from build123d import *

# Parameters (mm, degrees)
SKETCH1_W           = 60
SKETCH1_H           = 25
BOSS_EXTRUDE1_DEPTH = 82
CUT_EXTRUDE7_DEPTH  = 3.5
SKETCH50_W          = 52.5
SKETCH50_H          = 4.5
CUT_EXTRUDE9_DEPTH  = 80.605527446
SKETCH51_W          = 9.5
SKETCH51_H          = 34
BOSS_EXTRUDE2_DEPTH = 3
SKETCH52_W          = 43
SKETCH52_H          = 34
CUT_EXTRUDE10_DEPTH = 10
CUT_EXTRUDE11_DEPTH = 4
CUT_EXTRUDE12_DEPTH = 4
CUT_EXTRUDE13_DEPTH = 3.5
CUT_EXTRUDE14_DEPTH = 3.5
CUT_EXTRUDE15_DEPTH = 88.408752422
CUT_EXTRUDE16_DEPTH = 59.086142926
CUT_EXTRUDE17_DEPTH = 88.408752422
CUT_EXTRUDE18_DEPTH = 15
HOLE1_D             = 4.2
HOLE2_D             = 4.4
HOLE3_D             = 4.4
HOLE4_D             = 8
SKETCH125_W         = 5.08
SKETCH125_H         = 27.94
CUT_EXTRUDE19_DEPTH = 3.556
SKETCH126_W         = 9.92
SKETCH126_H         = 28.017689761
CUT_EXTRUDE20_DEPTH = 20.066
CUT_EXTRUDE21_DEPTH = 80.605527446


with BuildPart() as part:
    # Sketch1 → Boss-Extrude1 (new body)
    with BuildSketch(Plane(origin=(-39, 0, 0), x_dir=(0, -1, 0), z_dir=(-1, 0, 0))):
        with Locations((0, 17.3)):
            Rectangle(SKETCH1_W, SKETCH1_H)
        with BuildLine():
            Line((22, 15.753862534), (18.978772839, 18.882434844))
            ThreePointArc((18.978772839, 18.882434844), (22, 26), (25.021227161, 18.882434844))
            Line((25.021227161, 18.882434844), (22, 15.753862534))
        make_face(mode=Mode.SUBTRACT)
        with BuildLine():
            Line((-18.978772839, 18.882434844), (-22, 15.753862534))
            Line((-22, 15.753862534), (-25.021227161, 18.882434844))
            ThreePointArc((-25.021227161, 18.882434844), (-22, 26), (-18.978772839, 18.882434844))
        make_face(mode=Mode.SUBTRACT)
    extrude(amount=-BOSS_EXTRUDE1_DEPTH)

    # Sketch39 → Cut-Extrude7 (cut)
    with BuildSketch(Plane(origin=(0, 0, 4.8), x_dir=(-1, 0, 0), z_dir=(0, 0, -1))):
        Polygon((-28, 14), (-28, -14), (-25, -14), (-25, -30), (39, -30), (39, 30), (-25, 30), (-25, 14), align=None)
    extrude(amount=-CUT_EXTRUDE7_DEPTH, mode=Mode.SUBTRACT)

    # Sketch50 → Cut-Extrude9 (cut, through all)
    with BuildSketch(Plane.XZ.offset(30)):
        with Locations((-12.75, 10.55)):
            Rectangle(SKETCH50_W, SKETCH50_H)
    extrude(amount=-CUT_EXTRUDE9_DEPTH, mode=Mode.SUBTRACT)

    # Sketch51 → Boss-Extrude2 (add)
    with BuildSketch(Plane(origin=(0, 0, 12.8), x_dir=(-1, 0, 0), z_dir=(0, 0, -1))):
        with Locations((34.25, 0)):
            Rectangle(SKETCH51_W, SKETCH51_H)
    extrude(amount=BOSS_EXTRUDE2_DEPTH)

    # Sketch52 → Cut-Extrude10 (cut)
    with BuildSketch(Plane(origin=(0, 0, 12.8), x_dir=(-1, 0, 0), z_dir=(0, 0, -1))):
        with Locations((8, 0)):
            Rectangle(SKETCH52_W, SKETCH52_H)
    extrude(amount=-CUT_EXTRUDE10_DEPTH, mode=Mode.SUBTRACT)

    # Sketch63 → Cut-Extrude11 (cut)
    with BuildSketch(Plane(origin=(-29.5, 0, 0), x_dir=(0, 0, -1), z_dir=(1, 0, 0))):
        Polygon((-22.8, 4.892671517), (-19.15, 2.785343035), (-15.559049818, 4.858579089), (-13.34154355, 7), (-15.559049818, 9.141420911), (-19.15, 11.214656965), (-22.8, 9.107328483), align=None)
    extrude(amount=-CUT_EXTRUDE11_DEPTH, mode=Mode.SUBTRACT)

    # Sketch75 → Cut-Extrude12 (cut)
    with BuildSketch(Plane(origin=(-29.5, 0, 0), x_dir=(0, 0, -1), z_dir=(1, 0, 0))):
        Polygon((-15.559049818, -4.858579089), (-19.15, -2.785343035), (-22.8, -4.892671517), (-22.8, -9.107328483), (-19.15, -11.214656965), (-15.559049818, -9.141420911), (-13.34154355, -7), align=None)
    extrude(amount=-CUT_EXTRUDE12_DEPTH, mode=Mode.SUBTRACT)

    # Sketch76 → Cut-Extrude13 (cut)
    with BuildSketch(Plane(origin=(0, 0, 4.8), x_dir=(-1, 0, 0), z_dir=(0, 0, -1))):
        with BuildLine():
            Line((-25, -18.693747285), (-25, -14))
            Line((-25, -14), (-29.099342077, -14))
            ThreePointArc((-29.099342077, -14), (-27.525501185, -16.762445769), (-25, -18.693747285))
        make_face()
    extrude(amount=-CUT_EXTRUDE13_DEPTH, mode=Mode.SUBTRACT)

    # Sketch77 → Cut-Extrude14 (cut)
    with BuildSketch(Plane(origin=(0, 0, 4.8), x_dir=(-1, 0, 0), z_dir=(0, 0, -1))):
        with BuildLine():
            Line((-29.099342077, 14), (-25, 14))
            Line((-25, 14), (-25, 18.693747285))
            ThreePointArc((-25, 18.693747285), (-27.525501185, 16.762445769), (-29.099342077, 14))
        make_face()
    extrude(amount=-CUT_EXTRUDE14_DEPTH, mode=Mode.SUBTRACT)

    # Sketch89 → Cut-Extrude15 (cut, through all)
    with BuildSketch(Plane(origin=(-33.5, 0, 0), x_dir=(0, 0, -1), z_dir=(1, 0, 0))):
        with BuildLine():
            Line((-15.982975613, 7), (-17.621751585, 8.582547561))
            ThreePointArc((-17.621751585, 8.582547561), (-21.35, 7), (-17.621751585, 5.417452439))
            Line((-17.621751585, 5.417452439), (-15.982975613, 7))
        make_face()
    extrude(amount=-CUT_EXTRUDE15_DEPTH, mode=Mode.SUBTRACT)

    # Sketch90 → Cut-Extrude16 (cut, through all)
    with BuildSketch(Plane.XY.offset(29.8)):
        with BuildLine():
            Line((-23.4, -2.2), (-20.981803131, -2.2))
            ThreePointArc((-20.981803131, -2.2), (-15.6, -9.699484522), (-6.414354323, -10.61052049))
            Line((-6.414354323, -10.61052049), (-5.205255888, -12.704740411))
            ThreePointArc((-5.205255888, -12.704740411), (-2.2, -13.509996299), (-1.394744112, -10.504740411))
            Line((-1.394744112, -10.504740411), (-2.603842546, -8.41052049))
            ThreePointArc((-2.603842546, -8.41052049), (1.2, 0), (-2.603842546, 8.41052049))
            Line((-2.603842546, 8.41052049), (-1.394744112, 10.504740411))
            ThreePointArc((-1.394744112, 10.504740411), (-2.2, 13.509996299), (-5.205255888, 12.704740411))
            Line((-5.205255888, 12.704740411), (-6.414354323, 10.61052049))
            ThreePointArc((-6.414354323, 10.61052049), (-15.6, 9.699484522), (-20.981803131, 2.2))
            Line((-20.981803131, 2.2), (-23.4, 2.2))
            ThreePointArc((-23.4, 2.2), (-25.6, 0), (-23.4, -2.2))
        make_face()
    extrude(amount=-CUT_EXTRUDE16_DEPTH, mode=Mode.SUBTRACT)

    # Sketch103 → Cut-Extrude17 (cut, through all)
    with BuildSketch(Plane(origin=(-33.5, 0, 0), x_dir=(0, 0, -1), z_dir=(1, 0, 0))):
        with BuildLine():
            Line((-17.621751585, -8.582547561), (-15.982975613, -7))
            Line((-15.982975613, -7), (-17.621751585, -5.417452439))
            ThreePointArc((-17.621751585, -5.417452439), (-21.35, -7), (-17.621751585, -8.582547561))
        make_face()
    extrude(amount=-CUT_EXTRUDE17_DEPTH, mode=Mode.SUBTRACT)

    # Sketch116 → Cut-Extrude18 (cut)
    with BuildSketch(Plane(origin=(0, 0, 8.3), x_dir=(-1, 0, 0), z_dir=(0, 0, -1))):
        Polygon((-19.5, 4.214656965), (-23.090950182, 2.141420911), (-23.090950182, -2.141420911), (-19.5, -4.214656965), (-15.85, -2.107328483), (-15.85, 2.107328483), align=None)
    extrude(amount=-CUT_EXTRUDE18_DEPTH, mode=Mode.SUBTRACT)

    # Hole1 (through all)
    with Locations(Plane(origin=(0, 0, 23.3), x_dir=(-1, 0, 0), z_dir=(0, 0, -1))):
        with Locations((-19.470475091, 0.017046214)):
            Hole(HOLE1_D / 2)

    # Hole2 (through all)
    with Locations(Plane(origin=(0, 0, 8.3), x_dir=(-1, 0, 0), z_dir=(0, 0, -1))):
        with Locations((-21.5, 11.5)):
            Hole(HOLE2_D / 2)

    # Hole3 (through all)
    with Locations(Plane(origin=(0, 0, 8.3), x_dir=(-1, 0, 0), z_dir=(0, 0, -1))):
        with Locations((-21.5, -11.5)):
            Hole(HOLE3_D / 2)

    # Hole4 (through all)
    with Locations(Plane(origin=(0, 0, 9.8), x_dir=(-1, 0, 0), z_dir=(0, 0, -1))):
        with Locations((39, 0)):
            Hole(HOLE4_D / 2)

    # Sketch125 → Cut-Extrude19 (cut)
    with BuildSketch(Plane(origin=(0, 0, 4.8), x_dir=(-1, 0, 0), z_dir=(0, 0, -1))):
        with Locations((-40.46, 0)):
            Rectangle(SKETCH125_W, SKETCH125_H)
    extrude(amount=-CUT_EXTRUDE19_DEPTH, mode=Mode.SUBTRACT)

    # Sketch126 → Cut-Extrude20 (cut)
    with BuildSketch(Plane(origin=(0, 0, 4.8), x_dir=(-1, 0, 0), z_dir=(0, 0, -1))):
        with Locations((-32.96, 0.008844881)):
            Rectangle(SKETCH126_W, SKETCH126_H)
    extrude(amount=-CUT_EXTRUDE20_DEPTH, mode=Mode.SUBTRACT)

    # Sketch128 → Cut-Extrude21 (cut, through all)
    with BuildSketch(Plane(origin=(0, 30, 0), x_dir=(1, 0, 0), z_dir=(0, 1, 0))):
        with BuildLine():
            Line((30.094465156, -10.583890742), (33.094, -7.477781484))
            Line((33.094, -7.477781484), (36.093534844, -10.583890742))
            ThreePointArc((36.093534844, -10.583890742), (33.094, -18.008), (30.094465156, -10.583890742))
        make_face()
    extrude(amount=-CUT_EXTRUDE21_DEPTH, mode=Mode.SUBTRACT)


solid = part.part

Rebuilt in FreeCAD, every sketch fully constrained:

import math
import FreeCAD as App
import Part
import Sketcher
Q = App.Units.Quantity

doc = App.newDocument("Part")
body = doc.addObject("PartDesign::Body", "Body")

sketch1 = body.newObject("Sketcher::SketchObject", "Sketch")
sketch1.AttachmentSupport = (doc.getObject("YZ_Plane"), [""])
sketch1.MapMode = "FlatFace"
sketch1.AttachmentOffset = App.Placement(App.Vector(0, 0, -39), App.Rotation())
sketch1.addGeometry([
    Part.LineSegment(App.Vector(30, 29.8, 0), App.Vector(30, 4.8, 0)),
    Part.LineSegment(App.Vector(30, 4.8, 0), App.Vector(-30, 4.8, 0)),
    Part.LineSegment(App.Vector(-30, 4.8, 0), App.Vector(-30, 29.8, 0)),
    Part.LineSegment(App.Vector(-30, 29.8, 0), App.Vector(30, 29.8, 0)),
    Part.ArcOfCircle(Part.Circle(App.Vector(22, 21.8, 0), App.Vector(0, 0, 1), 4.2), math.radians(-44), math.radians(224)),
    Part.LineSegment(App.Vector(19, 18.9, 0), App.Vector(22, 15.8, 0)),
    Part.LineSegment(App.Vector(22, 15.8, 0), App.Vector(25, 18.9, 0)),
    Part.LineSegment(App.Vector(-25, 18.9, 0), App.Vector(-22, 15.8, 0)),
    Part.LineSegment(App.Vector(-22, 15.8, 0), App.Vector(-19, 18.9, 0)),
    Part.ArcOfCircle(Part.Circle(App.Vector(-22, 21.8, 0), App.Vector(0, 0, 1), 4.2), math.radians(-44), math.radians(224)),
], False)
sketch1.addConstraint([
    Sketcher.Constraint("Coincident", 0, 2, 1, 1),
    Sketcher.Constraint("Coincident", 1, 2, 2, 1),
    Sketcher.Constraint("Coincident", 2, 2, 3, 1),
    Sketcher.Constraint("Coincident", 3, 2, 0, 1),
    Sketcher.Constraint("Tangent", 4, 2, 5, 1),
    Sketcher.Constraint("Coincident", 5, 2, 6, 1),
    Sketcher.Constraint("Tangent", 6, 2, 4, 1),
    Sketcher.Constraint("Coincident", 7, 2, 8, 1),
    Sketcher.Constraint("Tangent", 8, 2, 9, 1),
    Sketcher.Constraint("Tangent", 9, 2, 7, 1),
    Sketcher.Constraint("Vertical", 0),
    Sketcher.Constraint("Horizontal", 1),
    Sketcher.Constraint("Vertical", 2),
    Sketcher.Constraint("Horizontal", 3),
    Sketcher.Constraint("Equal", 4, 9),
    Sketcher.Constraint("Symmetric", 4, 3, 9, 3, -2),
    Sketcher.Constraint("Symmetric", 5, 2, 7, 2, -2),
    Sketcher.Constraint("Parallel", 5, 7),
    Sketcher.Constraint("Radius", 4, Q("4.2 mm")),
    Sketcher.Constraint("DistanceX", 1, 2, 1, 1, Q("60 mm")),
    Sketcher.Constraint("DistanceY", 0, 2, 0, 1, Q("25 mm")),
    Sketcher.Constraint("Angle", 5, Q("-46 deg")),
    Sketcher.Constraint("DistanceX", -1, 1, 4, 3, Q("22 mm")),
    Sketcher.Constraint("DistanceX", -1, 1, 0, 2, Q("30 mm")),
    Sketcher.Constraint("DistanceY", 0, 2, 4, 3, Q("17 mm")),
    Sketcher.Constraint("DistanceY", -1, 1, 4, 3, Q("21.8 mm")),
])
pad1 = body.newObject("PartDesign::Pad", "Pad")
pad1.Profile = sketch1
pad1.Length = 82

sketch2 = body.newObject("Sketcher::SketchObject", "Sketch001")
sketch2.AttachmentSupport = (doc.getObject("XY_Plane"), [""])
sketch2.MapMode = "FlatFace"
sketch2.AttachmentOffset = App.Placement(App.Vector(0, 0, 4.8), App.Rotation())
sketch2.addGeometry([
    Part.LineSegment(App.Vector(28, 14, 0), App.Vector(28, -14, 0)),
    Part.LineSegment(App.Vector(28, -14, 0), App.Vector(25, -14, 0)),
    Part.LineSegment(App.Vector(25, -14, 0), App.Vector(25, -30, 0)),
    Part.LineSegment(App.Vector(25, -30, 0), App.Vector(-39, -30, 0)),
    Part.LineSegment(App.Vector(-39, -30, 0), App.Vector(-39, 30, 0)),
    Part.LineSegment(App.Vector(-39, 30, 0), App.Vector(25, 30, 0)),
    Part.LineSegment(App.Vector(25, 30, 0), App.Vector(25, 14, 0)),
    Part.LineSegment(App.Vector(25, 14, 0), App.Vector(28, 14, 0)),
], False)
sketch2.addConstraint([
    Sketcher.Constraint("Coincident", 0, 2, 1, 1),
    Sketcher.Constraint("Coincident", 1, 2, 2, 1),
    Sketcher.Constraint("Coincident", 2, 2, 3, 1),
    Sketcher.Constraint("Coincident", 3, 2, 4, 1),
    Sketcher.Constraint("Coincident", 4, 2, 5, 1),
    Sketcher.Constraint("Coincident", 5, 2, 6, 1),
    Sketcher.Constraint("Coincident", 6, 2, 7, 1),
    Sketcher.Constraint("Coincident", 7, 2, 0, 1),
    Sketcher.Constraint("Vertical", 0),
    Sketcher.Constraint("Horizontal", 1),
    Sketcher.Constraint("Vertical", 2),
    Sketcher.Constraint("Horizontal", 3),
    Sketcher.Constraint("Vertical", 4),
    Sketcher.Constraint("Horizontal", 5),
    Sketcher.Constraint("Vertical", 6),
    Sketcher.Constraint("Horizontal", 7),
    Sketcher.Constraint("Symmetric", 2, 2, 5, 2, -1),
    Sketcher.Constraint("Equal", 2, 6),
    Sketcher.Constraint("DistanceX", 1, 2, 1, 1, Q("3 mm")),
    Sketcher.Constraint("DistanceX", 3, 2, 3, 1, Q("64 mm")),
    Sketcher.Constraint("DistanceY", 0, 2, 0, 1, Q("28 mm")),
    Sketcher.Constraint("DistanceY", 2, 2, 2, 1, Q("16 mm")),
    Sketcher.Constraint("DistanceX", -1, 1, 0, 2, Q("28 mm")),
])
pocket1 = body.newObject("PartDesign::Pocket", "Pocket")
pocket1.Profile = sketch2
pocket1.Length = 3.5
pocket1.Reversed = True

sketch3 = body.newObject("Sketcher::SketchObject", "Sketch002")
sketch3.AttachmentSupport = (doc.getObject("XZ_Plane"), [""])
sketch3.MapMode = "FlatFace"
sketch3.AttachmentOffset = App.Placement(App.Vector(0, 0, 30), App.Rotation())
sketch3.addGeometry([
    Part.LineSegment(App.Vector(-39, 12.8, 0), App.Vector(-39, 8.3, 0)),
    Part.LineSegment(App.Vector(-39, 8.3, 0), App.Vector(13.5, 8.3, 0)),
    Part.LineSegment(App.Vector(13.5, 8.3, 0), App.Vector(13.5, 12.8, 0)),
    Part.LineSegment(App.Vector(13.5, 12.8, 0), App.Vector(-39, 12.8, 0)),
], False)
sketch3.addConstraint([
    Sketcher.Constraint("Coincident", 0, 2, 1, 1),
    Sketcher.Constraint("Coincident", 1, 2, 2, 1),
    Sketcher.Constraint("Coincident", 2, 2, 3, 1),
    Sketcher.Constraint("Coincident", 3, 2, 0, 1),
    Sketcher.Constraint("Vertical", 0),
    Sketcher.Constraint("Horizontal", 1),
    Sketcher.Constraint("Vertical", 2),
    Sketcher.Constraint("Horizontal", 3),
    Sketcher.Constraint("DistanceX", 1, 1, 1, 2, Q("52.5 mm")),
    Sketcher.Constraint("DistanceY", 0, 2, 0, 1, Q("4.5 mm")),
    Sketcher.Constraint("DistanceX", 0, 2, -1, 1, Q("39 mm")),
    Sketcher.Constraint("DistanceY", -1, 1, 0, 2, Q("8.3 mm")),
])
pocket2 = body.newObject("PartDesign::Pocket", "Pocket001")
pocket2.Profile = sketch3
pocket2.Type = "ThroughAll"

sketch4 = body.newObject("Sketcher::SketchObject", "Sketch003")
sketch4.AttachmentSupport = (doc.getObject("XY_Plane"), [""])
sketch4.MapMode = "FlatFace"
sketch4.AttachmentOffset = App.Placement(App.Vector(0, 0, 12.8), App.Rotation())
sketch4.addGeometry([
    Part.LineSegment(App.Vector(-30, 17, 0), App.Vector(-30, -17, 0)),
    Part.LineSegment(App.Vector(-30, -17, 0), App.Vector(-39, -17, 0)),
    Part.LineSegment(App.Vector(-39, -17, 0), App.Vector(-39, 17, 0)),
    Part.LineSegment(App.Vector(-39, 17, 0), App.Vector(-30, 17, 0)),
], False)
sketch4.addConstraint([
    Sketcher.Constraint("Coincident", 0, 2, 1, 1),
    Sketcher.Constraint("Coincident", 1, 2, 2, 1),
    Sketcher.Constraint("Coincident", 2, 2, 3, 1),
    Sketcher.Constraint("Coincident", 3, 2, 0, 1),
    Sketcher.Constraint("Vertical", 0),
    Sketcher.Constraint("Horizontal", 1),
    Sketcher.Constraint("Vertical", 2),
    Sketcher.Constraint("Horizontal", 3),
    Sketcher.Constraint("DistanceY", 0, 2, 0, 1, Q("34 mm")),
    Sketcher.Constraint("DistanceX", 1, 2, 1, 1, Q("9.5 mm")),
    Sketcher.Constraint("DistanceY", 0, 2, -1, 1, Q("17 mm")),
    Sketcher.Constraint("DistanceX", 1, 2, -1, 1, Q("39 mm")),
])
pad2 = body.newObject("PartDesign::Pad", "Pad001")
pad2.Profile = sketch4
pad2.Length = 3
pad2.Reversed = True

sketch5 = body.newObject("Sketcher::SketchObject", "Sketch004")
sketch5.AttachmentSupport = (doc.getObject("XY_Plane"), [""])
sketch5.MapMode = "FlatFace"
sketch5.AttachmentOffset = App.Placement(App.Vector(0, 0, 12.8), App.Rotation())
sketch5.addGeometry([
    Part.LineSegment(App.Vector(14, 17, 0), App.Vector(14, -17, 0)),
    Part.LineSegment(App.Vector(14, -17, 0), App.Vector(-30, -17, 0)),
    Part.LineSegment(App.Vector(-30, -17, 0), App.Vector(-30, 17, 0)),
    Part.LineSegment(App.Vector(-30, 17, 0), App.Vector(14, 17, 0)),
], False)
sketch5.addConstraint([
    Sketcher.Constraint("Coincident", 0, 2, 1, 1),
    Sketcher.Constraint("Coincident", 1, 2, 2, 1),
    Sketcher.Constraint("Coincident", 2, 2, 3, 1),
    Sketcher.Constraint("Coincident", 3, 2, 0, 1),
    Sketcher.Constraint("Vertical", 0),
    Sketcher.Constraint("Horizontal", 1),
    Sketcher.Constraint("Vertical", 2),
    Sketcher.Constraint("Horizontal", 3),
    Sketcher.Constraint("DistanceX", 1, 2, 1, 1, Q("43 mm")),
    Sketcher.Constraint("DistanceY", 0, 2, 0, 1, Q("34 mm")),
    Sketcher.Constraint("DistanceY", 0, 2, -1, 1, Q("17 mm")),
    Sketcher.Constraint("DistanceX", -1, 1, 0, 2, Q("13.5 mm")),
])
pocket3 = body.newObject("PartDesign::Pocket", "Pocket002")
pocket3.Profile = sketch5
pocket3.Length = 10
pocket3.Reversed = True

sketch6 = body.newObject("Sketcher::SketchObject", "Sketch005")
sketch6.AttachmentSupport = (doc.getObject("YZ_Plane"), [""])
sketch6.MapMode = "FlatFace"
sketch6.AttachmentOffset = App.Placement(App.Vector(0, 0, -29.5), App.Rotation())
sketch6.addGeometry([
    Part.LineSegment(App.Vector(4.9, 22.8, 0), App.Vector(2.8, 19.1, 0)),
    Part.LineSegment(App.Vector(2.8, 19.1, 0), App.Vector(4.9, 15.6, 0)),
    Part.LineSegment(App.Vector(4.9, 15.6, 0), App.Vector(7, 13.3, 0)),
    Part.LineSegment(App.Vector(7, 13.3, 0), App.Vector(9.1, 15.6, 0)),
    Part.LineSegment(App.Vector(9.1, 15.6, 0), App.Vector(11.2, 19.1, 0)),
    Part.LineSegment(App.Vector(11.2, 19.1, 0), App.Vector(9.1, 22.8, 0)),
    Part.LineSegment(App.Vector(9.1, 22.8, 0), App.Vector(4.9, 22.8, 0)),
], False)
sketch6.addConstraint([
    Sketcher.Constraint("Coincident", 0, 2, 1, 1),
    Sketcher.Constraint("Coincident", 1, 2, 2, 1),
    Sketcher.Constraint("Coincident", 2, 2, 3, 1),
    Sketcher.Constraint("Coincident", 3, 2, 4, 1),
    Sketcher.Constraint("Coincident", 4, 2, 5, 1),
    Sketcher.Constraint("Coincident", 5, 2, 6, 1),
    Sketcher.Constraint("Coincident", 6, 2, 0, 1),
    Sketcher.Constraint("Horizontal", 6),
    Sketcher.Constraint("Parallel", 0, 4),
    Sketcher.Constraint("Parallel", 1, 5),
    Sketcher.Constraint("Horizontal", 1, 2, 3, 2),
    Sketcher.Constraint("Horizontal", 0, 2, 4, 2),
    Sketcher.Constraint("Equal", 2, 3),
    Sketcher.Constraint("Equal", 1, 4),
    Sketcher.Constraint("Angle", 0, Q("-120 deg")),
    Sketcher.Constraint("Angle", 2, Q("-46 deg")),
    Sketcher.Constraint("DistanceX", -1, 1, 2, 2, Q("7 mm")),
    Sketcher.Constraint("DistanceY", -1, 1, 5, 2, Q("22.8 mm")),
    Sketcher.Constraint("DistanceY", -1, 1, 0, 2, Q("19.15 mm")),
    Sketcher.Constraint("DistanceX", 6, 2, 6, 1, Q("4.214657 mm")),
    Sketcher.Constraint("DistanceX", -1, 1, 1, 2, Q("4.858579 mm")),
])
pocket4 = body.newObject("PartDesign::Pocket", "Pocket003")
pocket4.Profile = sketch6
pocket4.Length = 4

sketch7 = body.newObject("Sketcher::SketchObject", "Sketch006")
sketch7.AttachmentSupport = (doc.getObject("YZ_Plane"), [""])
sketch7.MapMode = "FlatFace"
sketch7.AttachmentOffset = App.Placement(App.Vector(0, 0, -29.5), App.Rotation())
sketch7.addGeometry([
    Part.LineSegment(App.Vector(-4.9, 15.6, 0), App.Vector(-2.8, 19.1, 0)),
    Part.LineSegment(App.Vector(-2.8, 19.1, 0), App.Vector(-4.9, 22.8, 0)),
    Part.LineSegment(App.Vector(-4.9, 22.8, 0), App.Vector(-9.1, 22.8, 0)),
    Part.LineSegment(App.Vector(-9.1, 22.8, 0), App.Vector(-11.2, 19.1, 0)),
    Part.LineSegment(App.Vector(-11.2, 19.1, 0), App.Vector(-9.1, 15.6, 0)),
    Part.LineSegment(App.Vector(-9.1, 15.6, 0), App.Vector(-7, 13.3, 0)),
    Part.LineSegment(App.Vector(-7, 13.3, 0), App.Vector(-4.9, 15.6, 0)),
], False)
sketch7.addConstraint([
    Sketcher.Constraint("Coincident", 0, 2, 1, 1),
    Sketcher.Constraint("Coincident", 1, 2, 2, 1),
    Sketcher.Constraint("Coincident", 2, 2, 3, 1),
    Sketcher.Constraint("Coincident", 3, 2, 4, 1),
    Sketcher.Constraint("Coincident", 4, 2, 5, 1),
    Sketcher.Constraint("Coincident", 5, 2, 6, 1),
    Sketcher.Constraint("Coincident", 6, 2, 0, 1),
    Sketcher.Constraint("Horizontal", 2),
    Sketcher.Constraint("Parallel", 0, 3),
    Sketcher.Constraint("Parallel", 1, 4),
    Sketcher.Constraint("Horizontal", 0, 2, 3, 2),
    Sketcher.Constraint("Horizontal", 4, 2, 6, 2),
    Sketcher.Constraint("Equal", 1, 3),
    Sketcher.Constraint("Equal", 5, 6),
    Sketcher.Constraint("Angle", 0, Q("60 deg")),
    Sketcher.Constraint("Angle", 5, Q("-46 deg")),
    Sketcher.Constraint("DistanceX", 5, 2, -1, 1, Q("7 mm")),
    Sketcher.Constraint("DistanceY", -1, 1, 1, 2, Q("22.8 mm")),
    Sketcher.Constraint("DistanceY", -1, 1, 0, 2, Q("19.15 mm")),
    Sketcher.Constraint("DistanceX", 2, 2, 2, 1, Q("4.214657 mm")),
    Sketcher.Constraint("DistanceX", 4, 2, -1, 1, Q("9.141421 mm")),
])
pocket5 = body.newObject("PartDesign::Pocket", "Pocket004")
pocket5.Profile = sketch7
pocket5.Length = 4

sketch8 = body.newObject("Sketcher::SketchObject", "Sketch007")
sketch8.AttachmentSupport = (doc.getObject("XY_Plane"), [""])
sketch8.MapMode = "FlatFace"
sketch8.AttachmentOffset = App.Placement(App.Vector(0, 0, 4.8), App.Rotation())
sketch8.addGeometry([
    Part.LineSegment(App.Vector(25, -18.7, 0), App.Vector(25, -14, 0)),
    Part.LineSegment(App.Vector(25, -14, 0), App.Vector(29.1, -14, 0)),
    Part.ArcOfCircle(Part.Circle(App.Vector(21.5, -11.5, 0), App.Vector(0, 0, 1), 8), math.radians(-64), math.radians(-18)),
], False)
sketch8.addConstraint([
    Sketcher.Constraint("Coincident", 0, 2, 1, 1),
    Sketcher.Constraint("Coincident", 1, 2, 2, 2),
    Sketcher.Constraint("Coincident", 2, 1, 0, 1),
    Sketcher.Constraint("Vertical", 0),
    Sketcher.Constraint("Horizontal", 1),
    Sketcher.Constraint("Radius", 2, Q("8 mm")),
    Sketcher.Constraint("DistanceX", -1, 1, 0, 2, Q("25 mm")),
    Sketcher.Constraint("DistanceY", 0, 2, -1, 1, Q("14 mm")),
    Sketcher.Constraint("DistanceX", -1, 1, 2, 3, Q("21.5 mm")),
    Sketcher.Constraint("DistanceY", 2, 3, -1, 1, Q("11.5 mm")),
])
pocket6 = body.newObject("PartDesign::Pocket", "Pocket005")
pocket6.Profile = sketch8
pocket6.Length = 3.5
pocket6.Reversed = True

sketch9 = body.newObject("Sketcher::SketchObject", "Sketch008")
sketch9.AttachmentSupport = (doc.getObject("XY_Plane"), [""])
sketch9.MapMode = "FlatFace"
sketch9.AttachmentOffset = App.Placement(App.Vector(0, 0, 4.8), App.Rotation())
sketch9.addGeometry([
    Part.LineSegment(App.Vector(29.1, 14, 0), App.Vector(25, 14, 0)),
    Part.LineSegment(App.Vector(25, 14, 0), App.Vector(25, 18.7, 0)),
    Part.ArcOfCircle(Part.Circle(App.Vector(21.5, 11.5, 0), App.Vector(0, 0, 1), 8), math.radians(18), math.radians(64)),
], False)
sketch9.addConstraint([
    Sketcher.Constraint("Coincident", 0, 2, 1, 1),
    Sketcher.Constraint("Coincident", 1, 2, 2, 2),
    Sketcher.Constraint("Coincident", 2, 1, 0, 1),
    Sketcher.Constraint("Horizontal", 0),
    Sketcher.Constraint("Vertical", 1),
    Sketcher.Constraint("Radius", 2, Q("8 mm")),
    Sketcher.Constraint("DistanceX", -1, 1, 0, 2, Q("25 mm")),
    Sketcher.Constraint("DistanceY", -1, 1, 0, 2, Q("14 mm")),
    Sketcher.Constraint("DistanceX", -1, 1, 2, 3, Q("21.5 mm")),
    Sketcher.Constraint("DistanceY", -1, 1, 2, 3, Q("11.5 mm")),
])
pocket7 = body.newObject("PartDesign::Pocket", "Pocket006")
pocket7.Profile = sketch9
pocket7.Length = 3.5
pocket7.Reversed = True

sketch10 = body.newObject("Sketcher::SketchObject", "Sketch009")
sketch10.AttachmentSupport = (doc.getObject("YZ_Plane"), [""])
sketch10.MapMode = "FlatFace"
sketch10.AttachmentOffset = App.Placement(App.Vector(0, 0, -33.5), App.Rotation())
sketch10.addGeometry([
    Part.LineSegment(App.Vector(7, 16, 0), App.Vector(8.6, 17.6, 0)),
    Part.ArcOfCircle(Part.Circle(App.Vector(7, 19.1, 0), App.Vector(0, 0, 1), 2.2), math.radians(-44), math.radians(224)),
    Part.LineSegment(App.Vector(5.4, 17.6, 0), App.Vector(7, 16, 0)),
], False)
sketch10.addConstraint([
    Sketcher.Constraint("Tangent", 0, 2, 1, 1),
    Sketcher.Constraint("Tangent", 1, 2, 2, 1),
    Sketcher.Constraint("Coincident", 2, 2, 0, 1),
    Sketcher.Constraint("Horizontal", 0, 2, 1, 2),
    Sketcher.Constraint("Radius", 1, Q("2.2 mm")),
    Sketcher.Constraint("Angle", 0, Q("46 deg")),
    Sketcher.Constraint("DistanceX", -1, 1, 1, 3, Q("7 mm")),
    Sketcher.Constraint("DistanceY", -1, 1, 1, 3, Q("19.15 mm")),
])
pocket8 = body.newObject("PartDesign::Pocket", "Pocket007")
pocket8.Profile = sketch10
pocket8.Type = "ThroughAll"

sketch11 = body.newObject("Sketcher::SketchObject", "Sketch010")
sketch11.AttachmentSupport = (doc.getObject("XY_Plane"), [""])
sketch11.MapMode = "FlatFace"
sketch11.AttachmentOffset = App.Placement(App.Vector(0, 0, 29.8), App.Rotation())
sketch11.addGeometry([
    Part.LineSegment(App.Vector(-23.4, -2.2, 0), App.Vector(-21, -2.2, 0)),
    Part.ArcOfCircle(Part.Circle(App.Vector(-10, 0, 0), App.Vector(0, 0, 1), 11.2), math.radians(-169), math.radians(-71)),
    Part.LineSegment(App.Vector(-6.4, -10.6, 0), App.Vector(-5.2, -12.7, 0)),
    Part.ArcOfCircle(Part.Circle(App.Vector(-3.3, -11.6, 0), App.Vector(0, 0, 1), 2.2), math.radians(-150), math.radians(30)),
    Part.LineSegment(App.Vector(-1.4, -10.5, 0), App.Vector(-2.6, -8.4, 0)),
    Part.ArcOfCircle(Part.Circle(App.Vector(-10, 0, 0), App.Vector(0, 0, 1), 11.2), math.radians(-49), math.radians(49)),
    Part.LineSegment(App.Vector(-2.6, 8.4, 0), App.Vector(-1.4, 10.5, 0)),
    Part.ArcOfCircle(Part.Circle(App.Vector(-3.3, 11.6, 0), App.Vector(0, 0, 1), 2.2), math.radians(-30), math.radians(150)),
    Part.LineSegment(App.Vector(-5.2, 12.7, 0), App.Vector(-6.4, 10.6, 0)),
    Part.ArcOfCircle(Part.Circle(App.Vector(-10, 0, 0), App.Vector(0, 0, 1), 11.2), math.radians(71), math.radians(169)),
    Part.LineSegment(App.Vector(-21, 2.2, 0), App.Vector(-23.4, 2.2, 0)),
    Part.ArcOfCircle(Part.Circle(App.Vector(-23.4, 0, 0), App.Vector(0, 0, 1), 2.2), math.radians(90), math.radians(270)),
], False)
sketch11.addConstraint([
    Sketcher.Constraint("Coincident", 0, 2, 1, 1),
    Sketcher.Constraint("Coincident", 1, 2, 2, 1),
    Sketcher.Constraint("Tangent", 2, 2, 3, 1),
    Sketcher.Constraint("Tangent", 3, 2, 4, 1),
    Sketcher.Constraint("Coincident", 4, 2, 5, 1),
    Sketcher.Constraint("Coincident", 5, 2, 6, 1),
    Sketcher.Constraint("Tangent", 6, 2, 7, 1),
    Sketcher.Constraint("Tangent", 7, 2, 8, 1),
    Sketcher.Constraint("Coincident", 8, 2, 9, 1),
    Sketcher.Constraint("Coincident", 9, 2, 10, 1),
    Sketcher.Constraint("Tangent", 10, 2, 11, 1),
    Sketcher.Constraint("Tangent", 11, 2, 0, 1),
    Sketcher.Constraint("Horizontal", 0),
    Sketcher.Constraint("Horizontal", 10),
    Sketcher.Constraint("Coincident", 5, 3, 1, 3),
    Sketcher.Constraint("Coincident", 9, 3, 1, 3),
    Sketcher.Constraint("Equal", 1, 5),
    Sketcher.Constraint("Equal", 3, 7),
    Sketcher.Constraint("Equal", 5, 9),
    Sketcher.Constraint("Equal", 7, 11),
    Sketcher.Constraint("Symmetric", 3, 3, 7, 3, -1),
    Sketcher.Constraint("Symmetric", 4, 2, 5, 2, -1),
    Sketcher.Constraint("PointOnObject", 11, 3, -1),
    Sketcher.Constraint("Parallel", 2, 4),
    Sketcher.Constraint("Parallel", 6, 8),
    Sketcher.Constraint("Equal", 2, 4),
    Sketcher.Constraint("Radius", 1, Q("11.2 mm")),
    Sketcher.Constraint("Radius", 3, Q("2.2 mm")),
    Sketcher.Constraint("Angle", 2, Q("-60 deg")),
    Sketcher.Constraint("DistanceX", 1, 3, -1, 1, Q("10 mm")),
    Sketcher.Constraint("DistanceX", 3, 3, -1, 1, Q("3.3 mm")),
    Sketcher.Constraint("DistanceX", 11, 3, -1, 1, Q("23.4 mm")),
])
pocket9 = body.newObject("PartDesign::Pocket", "Pocket008")
pocket9.Profile = sketch11
pocket9.Type = "ThroughAll"

sketch12 = body.newObject("Sketcher::SketchObject", "Sketch011")
sketch12.AttachmentSupport = (doc.getObject("YZ_Plane"), [""])
sketch12.MapMode = "FlatFace"
sketch12.AttachmentOffset = App.Placement(App.Vector(0, 0, -33.5), App.Rotation())
sketch12.addGeometry([
    Part.LineSegment(App.Vector(-8.6, 17.6, 0), App.Vector(-7, 16, 0)),
    Part.LineSegment(App.Vector(-7, 16, 0), App.Vector(-5.4, 17.6, 0)),
    Part.ArcOfCircle(Part.Circle(App.Vector(-7, 19.1, 0), App.Vector(0, 0, 1), 2.2), math.radians(-44), math.radians(224)),
], False)
sketch12.addConstraint([
    Sketcher.Constraint("Coincident", 0, 2, 1, 1),
    Sketcher.Constraint("Tangent", 1, 2, 2, 1),
    Sketcher.Constraint("Tangent", 2, 2, 0, 1),
    Sketcher.Constraint("Horizontal", 1, 2, 2, 2),
    Sketcher.Constraint("Radius", 2, Q("2.2 mm")),
    Sketcher.Constraint("Angle", 0, Q("-46 deg")),
    Sketcher.Constraint("DistanceX", 2, 3, -1, 1, Q("7 mm")),
    Sketcher.Constraint("DistanceY", -1, 1, 2, 3, Q("19.15 mm")),
])
pocket10 = body.newObject("PartDesign::Pocket", "Pocket009")
pocket10.Profile = sketch12
pocket10.Type = "ThroughAll"

sketch13 = body.newObject("Sketcher::SketchObject", "Sketch012")
sketch13.AttachmentSupport = (doc.getObject("XY_Plane"), [""])
sketch13.MapMode = "FlatFace"
sketch13.AttachmentOffset = App.Placement(App.Vector(0, 0, 8.3), App.Rotation())
sketch13.addGeometry([
    Part.LineSegment(App.Vector(19.5, 4.2, 0), App.Vector(23.1, 2.1, 0)),
    Part.LineSegment(App.Vector(23.1, 2.1, 0), App.Vector(23.1, -2.1, 0)),
    Part.LineSegment(App.Vector(23.1, -2.1, 0), App.Vector(19.5, -4.2, 0)),
    Part.LineSegment(App.Vector(19.5, -4.2, 0), App.Vector(15.8, -2.1, 0)),
    Part.LineSegment(App.Vector(15.8, -2.1, 0), App.Vector(15.8, 2.1, 0)),
    Part.LineSegment(App.Vector(15.8, 2.1, 0), App.Vector(19.5, 4.2, 0)),
], False)
sketch13.addConstraint([
    Sketcher.Constraint("Coincident", 0, 2, 1, 1),
    Sketcher.Constraint("Coincident", 1, 2, 2, 1),
    Sketcher.Constraint("Coincident", 2, 2, 3, 1),
    Sketcher.Constraint("Coincident", 3, 2, 4, 1),
    Sketcher.Constraint("Coincident", 4, 2, 5, 1),
    Sketcher.Constraint("Coincident", 5, 2, 0, 1),
    Sketcher.Constraint("Vertical", 1),
    Sketcher.Constraint("Vertical", 4),
    Sketcher.Constraint("Symmetric", 2, 2, 5, 2, -1),
    Sketcher.Constraint("Parallel", 0, 3),
    Sketcher.Constraint("Parallel", 2, 5),
    Sketcher.Constraint("Equal", 0, 2),
    Sketcher.Constraint("Angle", 0, Q("-30 deg")),
    Sketcher.Constraint("DistanceX", -1, 1, 2, 2, Q("19.5 mm")),
    Sketcher.Constraint("DistanceX", -1, 1, 3, 2, Q("15.85 mm")),
    Sketcher.Constraint("DistanceY", 1, 2, 1, 1, Q("4.282842 mm")),
    Sketcher.Constraint("DistanceY", 4, 1, 4, 2, Q("4.214657 mm")),
])
pocket11 = body.newObject("PartDesign::Pocket", "Pocket010")
pocket11.Profile = sketch13
pocket11.Length = 15
pocket11.Reversed = True

sketch14 = body.newObject("Sketcher::SketchObject", "Sketch013")
sketch14.AttachmentSupport = (doc.getObject("XY_Plane"), [""])
sketch14.MapMode = "FlatFace"
sketch14.AttachmentOffset = App.Placement(App.Vector(0, 0, 23.3), App.Rotation())
sketch14.addGeometry(Part.Circle(App.Vector(19.5, 0, 0), App.Vector(0, 0, 1), 2.1), False)
sketch14.addConstraint([
    Sketcher.Constraint("Diameter", 0, Q("4.2 mm")),
    Sketcher.Constraint("DistanceX", -1, 1, 0, 3, Q("19.470475 mm")),
    Sketcher.Constraint("DistanceY", -1, 1, 0, 3, Q("0.017046 mm")),
])
doc.recompute()
hole = body.newObject("PartDesign::Hole", "Hole")
hole.Profile = sketch14
hole.ThreadType = "None"
hole.Diameter = 4.2
hole.DepthType = "ThroughAll"
hole.Reversed = True

sketch15 = body.newObject("Sketcher::SketchObject", "Sketch014")
sketch15.AttachmentSupport = (doc.getObject("XY_Plane"), [""])
sketch15.MapMode = "FlatFace"
sketch15.AttachmentOffset = App.Placement(App.Vector(0, 0, 8.3), App.Rotation())
sketch15.addGeometry(Part.Circle(App.Vector(21.5, 11.5, 0), App.Vector(0, 0, 1), 2.2), False)
sketch15.addConstraint([
    Sketcher.Constraint("Diameter", 0, Q("4.4 mm")),
    Sketcher.Constraint("DistanceX", -1, 1, 0, 3, Q("21.5 mm")),
    Sketcher.Constraint("DistanceY", -1, 1, 0, 3, Q("11.5 mm")),
])
doc.recompute()
hole2 = body.newObject("PartDesign::Hole", "Hole001")
hole2.Profile = sketch15
hole2.ThreadType = "None"
hole2.Diameter = 4.4
hole2.DepthType = "ThroughAll"
hole2.Reversed = True

sketch16 = body.newObject("Sketcher::SketchObject", "Sketch015")
sketch16.AttachmentSupport = (doc.getObject("XY_Plane"), [""])
sketch16.MapMode = "FlatFace"
sketch16.AttachmentOffset = App.Placement(App.Vector(0, 0, 8.3), App.Rotation())
sketch16.addGeometry(Part.Circle(App.Vector(21.5, -11.5, 0), App.Vector(0, 0, 1), 2.2), False)
sketch16.addConstraint([
    Sketcher.Constraint("Diameter", 0, Q("4.4 mm")),
    Sketcher.Constraint("DistanceX", -1, 1, 0, 3, Q("21.5 mm")),
    Sketcher.Constraint("DistanceY", 0, 3, -1, 1, Q("11.5 mm")),
])
doc.recompute()
hole3 = body.newObject("PartDesign::Hole", "Hole002")
hole3.Profile = sketch16
hole3.ThreadType = "None"
hole3.Diameter = 4.4
hole3.DepthType = "ThroughAll"
hole3.Reversed = True

sketch17 = body.newObject("Sketcher::SketchObject", "Sketch016")
sketch17.AttachmentSupport = (doc.getObject("XY_Plane"), [""])
sketch17.MapMode = "FlatFace"
sketch17.AttachmentOffset = App.Placement(App.Vector(0, 0, 9.8), App.Rotation())
sketch17.addGeometry(Part.Circle(App.Vector(-39, 0, 0), App.Vector(0, 0, 1), 4), False)
sketch17.addConstraint([
    Sketcher.Constraint("PointOnObject", 0, 3, -1),
    Sketcher.Constraint("Diameter", 0, Q("8 mm")),
    Sketcher.Constraint("DistanceX", 0, 3, -1, 1, Q("39 mm")),
])
doc.recompute()
hole4 = body.newObject("PartDesign::Hole", "Hole003")
hole4.Profile = sketch17
hole4.ThreadType = "None"
hole4.Diameter = 8
hole4.DepthType = "ThroughAll"
hole4.Reversed = True

sketch18 = body.newObject("Sketcher::SketchObject", "Sketch017")
sketch18.AttachmentSupport = (doc.getObject("XY_Plane"), [""])
sketch18.MapMode = "FlatFace"
sketch18.AttachmentOffset = App.Placement(App.Vector(0, 0, 4.8), App.Rotation())
sketch18.addGeometry([
    Part.LineSegment(App.Vector(43, 14, 0), App.Vector(43, -14, 0)),
    Part.LineSegment(App.Vector(43, -14, 0), App.Vector(38, -14, 0)),
    Part.LineSegment(App.Vector(38, -14, 0), App.Vector(38, 14, 0)),
    Part.LineSegment(App.Vector(38, 14, 0), App.Vector(43, 14, 0)),
], False)
sketch18.addConstraint([
    Sketcher.Constraint("Coincident", 0, 2, 1, 1),
    Sketcher.Constraint("Coincident", 1, 2, 2, 1),
    Sketcher.Constraint("Coincident", 2, 2, 3, 1),
    Sketcher.Constraint("Coincident", 3, 2, 0, 1),
    Sketcher.Constraint("Vertical", 0),
    Sketcher.Constraint("Horizontal", 1),
    Sketcher.Constraint("Vertical", 2),
    Sketcher.Constraint("Horizontal", 3),
    Sketcher.Constraint("DistanceX", -1, 1, 0, 2, Q("43 mm")),
    Sketcher.Constraint("DistanceX", 1, 2, 1, 1, Q("5.08 mm")),
    Sketcher.Constraint("DistanceY", 0, 2, 0, 1, Q("27.94 mm")),
    Sketcher.Constraint("DistanceY", 0, 2, -1, 1, Q("13.97 mm")),
])
pocket12 = body.newObject("PartDesign::Pocket", "Pocket011")
pocket12.Profile = sketch18
pocket12.Length = 3.556
pocket12.Reversed = True

sketch19 = body.newObject("Sketcher::SketchObject", "Sketch018")
sketch19.AttachmentSupport = (doc.getObject("XY_Plane"), [""])
sketch19.MapMode = "FlatFace"
sketch19.AttachmentOffset = App.Placement(App.Vector(0, 0, 4.8), App.Rotation())
sketch19.addGeometry([
    Part.LineSegment(App.Vector(38, 14, 0), App.Vector(38, -14, 0)),
    Part.LineSegment(App.Vector(38, -14, 0), App.Vector(28, -14, 0)),
    Part.LineSegment(App.Vector(28, -14, 0), App.Vector(28, 14, 0)),
    Part.LineSegment(App.Vector(28, 14, 0), App.Vector(38, 14, 0)),
], False)
sketch19.addConstraint([
    Sketcher.Constraint("Coincident", 0, 2, 1, 1),
    Sketcher.Constraint("Coincident", 1, 2, 2, 1),
    Sketcher.Constraint("Coincident", 2, 2, 3, 1),
    Sketcher.Constraint("Coincident", 3, 2, 0, 1),
    Sketcher.Constraint("Vertical", 0),
    Sketcher.Constraint("Horizontal", 1),
    Sketcher.Constraint("Vertical", 2),
    Sketcher.Constraint("Horizontal", 3),
    Sketcher.Constraint("DistanceY", 0, 2, -1, 1, Q("14 mm")),
    Sketcher.Constraint("DistanceX", -1, 1, 1, 2, Q("28 mm")),
    Sketcher.Constraint("DistanceX", 1, 2, 1, 1, Q("9.92 mm")),
    Sketcher.Constraint("DistanceY", 0, 2, 0, 1, Q("28.01769 mm")),
])
pocket13 = body.newObject("PartDesign::Pocket", "Pocket012")
pocket13.Profile = sketch19
pocket13.Length = 20.066
pocket13.Reversed = True

sketch20 = body.newObject("Sketcher::SketchObject", "Sketch019")
sketch20.AttachmentSupport = (doc.getObject("XZ_Plane"), [""])
sketch20.MapMode = "FlatFace"
sketch20.AttachmentOffset = App.Placement(App.Vector(0, 0, -30), App.Rotation())
sketch20.addGeometry([
    Part.LineSegment(App.Vector(33.1, 7.5, 0), App.Vector(30.1, 10.6, 0)),
    Part.ArcOfCircle(Part.Circle(App.Vector(33.1, 13.7, 0), App.Vector(0, 0, 1), 4.3), math.radians(-46), math.radians(226)),
    Part.LineSegment(App.Vector(36.1, 10.6, 0), App.Vector(33.1, 7.5, 0)),
], False)
sketch20.addConstraint([
    Sketcher.Constraint("Coincident", 0, 2, 1, 2),
    Sketcher.Constraint("Coincident", 1, 1, 2, 1),
    Sketcher.Constraint("Coincident", 2, 2, 0, 1),
    Sketcher.Constraint("Horizontal", 0, 2, 1, 1),
    Sketcher.Constraint("Vertical", 1, 3, 2, 2),
    Sketcher.Constraint("Angle", 0, Q("134 deg")),
    Sketcher.Constraint("Radius", 1, Q("4.318 mm")),
    Sketcher.Constraint("DistanceY", -1, 1, 1, 3, Q("13.69 mm")),
    Sketcher.Constraint("Distance", 0, Q("4.318 mm")),
    Sketcher.Constraint("DistanceX", -1, 1, 1, 3, Q("33.094 mm")),
])
pocket14 = body.newObject("PartDesign::Pocket", "Pocket013")
pocket14.Profile = sketch20
pocket14.Type = "ThroughAll"
pocket14.Reversed = True

doc.recompute()
